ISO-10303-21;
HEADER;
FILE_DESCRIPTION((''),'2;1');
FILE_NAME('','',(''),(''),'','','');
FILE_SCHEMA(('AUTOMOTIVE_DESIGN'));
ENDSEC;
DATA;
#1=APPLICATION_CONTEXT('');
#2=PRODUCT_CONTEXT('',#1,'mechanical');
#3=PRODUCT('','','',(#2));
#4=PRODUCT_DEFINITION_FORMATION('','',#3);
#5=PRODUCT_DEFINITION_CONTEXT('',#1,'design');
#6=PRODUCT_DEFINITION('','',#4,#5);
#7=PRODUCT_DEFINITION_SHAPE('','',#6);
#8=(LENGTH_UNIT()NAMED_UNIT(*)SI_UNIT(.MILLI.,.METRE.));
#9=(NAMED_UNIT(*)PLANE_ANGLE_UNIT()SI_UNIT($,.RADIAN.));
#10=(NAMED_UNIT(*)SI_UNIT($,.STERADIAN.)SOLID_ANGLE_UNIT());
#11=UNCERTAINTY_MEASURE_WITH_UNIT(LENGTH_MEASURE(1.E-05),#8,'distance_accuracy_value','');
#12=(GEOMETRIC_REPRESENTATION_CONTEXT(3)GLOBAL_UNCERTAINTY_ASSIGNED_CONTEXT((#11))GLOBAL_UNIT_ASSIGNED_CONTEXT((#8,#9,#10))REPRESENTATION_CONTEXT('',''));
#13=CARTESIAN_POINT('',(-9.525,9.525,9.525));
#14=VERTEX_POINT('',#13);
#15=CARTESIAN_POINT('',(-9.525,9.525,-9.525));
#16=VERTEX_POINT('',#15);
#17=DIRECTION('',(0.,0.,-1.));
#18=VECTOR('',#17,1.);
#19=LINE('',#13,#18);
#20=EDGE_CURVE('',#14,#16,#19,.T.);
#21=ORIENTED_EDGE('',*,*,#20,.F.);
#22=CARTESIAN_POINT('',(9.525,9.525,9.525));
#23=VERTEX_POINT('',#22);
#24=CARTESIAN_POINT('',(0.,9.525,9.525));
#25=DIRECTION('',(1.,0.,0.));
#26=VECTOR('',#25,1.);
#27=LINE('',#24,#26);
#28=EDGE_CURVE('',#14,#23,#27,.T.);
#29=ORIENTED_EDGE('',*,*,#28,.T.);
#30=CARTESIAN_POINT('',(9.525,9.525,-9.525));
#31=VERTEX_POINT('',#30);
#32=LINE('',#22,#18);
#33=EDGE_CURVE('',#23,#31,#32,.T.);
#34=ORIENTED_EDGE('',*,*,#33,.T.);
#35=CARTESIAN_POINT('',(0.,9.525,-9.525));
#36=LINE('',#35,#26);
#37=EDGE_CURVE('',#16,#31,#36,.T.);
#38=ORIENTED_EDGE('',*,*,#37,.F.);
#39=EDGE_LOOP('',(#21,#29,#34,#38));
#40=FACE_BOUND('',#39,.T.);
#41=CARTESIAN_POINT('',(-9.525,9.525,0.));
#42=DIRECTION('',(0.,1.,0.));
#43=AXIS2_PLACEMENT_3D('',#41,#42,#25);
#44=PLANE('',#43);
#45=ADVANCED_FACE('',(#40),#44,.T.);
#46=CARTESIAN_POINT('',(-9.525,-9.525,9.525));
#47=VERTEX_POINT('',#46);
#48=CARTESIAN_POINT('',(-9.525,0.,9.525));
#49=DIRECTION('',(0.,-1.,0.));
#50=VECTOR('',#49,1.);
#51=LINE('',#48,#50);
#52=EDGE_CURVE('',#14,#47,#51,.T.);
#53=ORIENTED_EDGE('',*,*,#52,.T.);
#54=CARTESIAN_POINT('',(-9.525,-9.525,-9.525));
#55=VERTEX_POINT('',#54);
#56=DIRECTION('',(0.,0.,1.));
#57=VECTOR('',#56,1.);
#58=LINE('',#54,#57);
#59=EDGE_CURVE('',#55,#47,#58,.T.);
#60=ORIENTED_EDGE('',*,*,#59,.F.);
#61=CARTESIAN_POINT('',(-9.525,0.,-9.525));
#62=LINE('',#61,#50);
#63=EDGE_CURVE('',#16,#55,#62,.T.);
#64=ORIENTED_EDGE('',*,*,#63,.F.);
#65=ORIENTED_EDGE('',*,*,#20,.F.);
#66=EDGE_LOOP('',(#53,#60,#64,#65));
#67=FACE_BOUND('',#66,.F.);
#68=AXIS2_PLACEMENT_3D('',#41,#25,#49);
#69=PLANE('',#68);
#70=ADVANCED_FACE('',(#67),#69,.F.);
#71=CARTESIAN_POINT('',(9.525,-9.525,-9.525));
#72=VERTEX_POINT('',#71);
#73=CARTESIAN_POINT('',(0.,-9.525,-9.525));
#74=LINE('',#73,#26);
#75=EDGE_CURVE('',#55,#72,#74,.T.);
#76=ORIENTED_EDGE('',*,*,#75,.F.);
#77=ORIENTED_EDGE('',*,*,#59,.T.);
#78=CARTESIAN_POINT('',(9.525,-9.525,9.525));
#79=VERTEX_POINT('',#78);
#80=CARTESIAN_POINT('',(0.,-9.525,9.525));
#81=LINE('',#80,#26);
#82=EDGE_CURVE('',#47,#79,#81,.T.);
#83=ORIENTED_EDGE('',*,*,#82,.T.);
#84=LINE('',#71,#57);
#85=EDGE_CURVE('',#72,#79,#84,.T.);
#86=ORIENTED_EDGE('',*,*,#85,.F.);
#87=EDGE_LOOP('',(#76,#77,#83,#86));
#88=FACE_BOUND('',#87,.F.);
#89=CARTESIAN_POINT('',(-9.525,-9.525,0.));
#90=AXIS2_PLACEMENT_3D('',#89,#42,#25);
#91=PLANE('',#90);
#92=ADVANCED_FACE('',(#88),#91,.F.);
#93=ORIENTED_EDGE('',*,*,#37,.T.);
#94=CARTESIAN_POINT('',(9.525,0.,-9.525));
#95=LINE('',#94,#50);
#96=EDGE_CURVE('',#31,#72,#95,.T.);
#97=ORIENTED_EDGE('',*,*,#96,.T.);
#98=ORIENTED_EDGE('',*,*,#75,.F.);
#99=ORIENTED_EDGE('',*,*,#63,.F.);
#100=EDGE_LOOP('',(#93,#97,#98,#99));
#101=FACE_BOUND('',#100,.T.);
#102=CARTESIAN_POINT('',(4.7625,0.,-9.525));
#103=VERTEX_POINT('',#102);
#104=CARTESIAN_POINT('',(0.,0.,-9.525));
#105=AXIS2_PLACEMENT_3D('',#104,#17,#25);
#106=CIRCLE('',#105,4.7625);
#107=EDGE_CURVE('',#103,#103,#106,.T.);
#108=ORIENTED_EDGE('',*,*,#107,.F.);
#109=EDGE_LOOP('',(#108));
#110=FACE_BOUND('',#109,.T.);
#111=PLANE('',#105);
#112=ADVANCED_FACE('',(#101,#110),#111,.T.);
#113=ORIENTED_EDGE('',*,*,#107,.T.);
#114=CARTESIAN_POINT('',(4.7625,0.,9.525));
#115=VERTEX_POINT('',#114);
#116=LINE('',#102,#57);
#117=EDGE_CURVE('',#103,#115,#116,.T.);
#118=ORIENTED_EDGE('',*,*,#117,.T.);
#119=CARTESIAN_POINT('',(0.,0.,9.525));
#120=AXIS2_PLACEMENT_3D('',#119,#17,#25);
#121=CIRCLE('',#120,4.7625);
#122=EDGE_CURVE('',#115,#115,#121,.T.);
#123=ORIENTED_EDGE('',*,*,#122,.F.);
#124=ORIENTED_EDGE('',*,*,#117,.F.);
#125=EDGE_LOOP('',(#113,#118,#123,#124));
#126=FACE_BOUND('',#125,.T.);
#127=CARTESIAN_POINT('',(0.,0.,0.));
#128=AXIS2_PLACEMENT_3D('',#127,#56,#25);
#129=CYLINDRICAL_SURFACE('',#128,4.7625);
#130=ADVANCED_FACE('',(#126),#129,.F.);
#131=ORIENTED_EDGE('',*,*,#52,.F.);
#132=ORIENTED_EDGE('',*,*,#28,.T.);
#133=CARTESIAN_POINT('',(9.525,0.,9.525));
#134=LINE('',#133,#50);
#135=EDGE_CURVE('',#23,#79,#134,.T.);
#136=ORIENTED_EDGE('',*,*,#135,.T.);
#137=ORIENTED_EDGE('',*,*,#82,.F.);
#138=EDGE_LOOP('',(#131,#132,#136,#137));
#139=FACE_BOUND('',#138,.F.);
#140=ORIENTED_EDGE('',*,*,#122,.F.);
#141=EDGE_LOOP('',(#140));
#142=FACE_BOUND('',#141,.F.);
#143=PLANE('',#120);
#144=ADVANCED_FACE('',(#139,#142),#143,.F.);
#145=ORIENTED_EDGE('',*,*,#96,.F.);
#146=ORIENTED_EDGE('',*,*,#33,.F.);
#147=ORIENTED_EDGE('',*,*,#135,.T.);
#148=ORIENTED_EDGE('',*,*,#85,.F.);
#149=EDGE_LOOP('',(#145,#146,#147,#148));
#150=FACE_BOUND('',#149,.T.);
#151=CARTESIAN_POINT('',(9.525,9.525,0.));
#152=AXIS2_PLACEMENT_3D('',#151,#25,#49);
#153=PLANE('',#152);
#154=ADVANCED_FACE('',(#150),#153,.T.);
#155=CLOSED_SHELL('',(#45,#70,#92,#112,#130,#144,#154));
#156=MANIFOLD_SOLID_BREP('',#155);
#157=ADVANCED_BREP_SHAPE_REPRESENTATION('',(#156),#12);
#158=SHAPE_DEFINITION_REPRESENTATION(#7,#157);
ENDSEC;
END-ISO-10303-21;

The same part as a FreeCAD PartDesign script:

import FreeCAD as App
import Part
import Sketcher

V = App.Vector
Q = App.Units.Quantity

doc = App.newDocument("Part")
params = doc.addObject("Spreadsheet::Sheet", "Params")
for row, (alias, value) in enumerate([
    ("sketch1_diameter", "0.375 in"),
    ("sketch1_width", "0.75 in"),
    ("pad1_length", "0.75 in"),
], start=1):
    params.set(f"A{row}", alias)
    params.set(f"B{row}", "=" + value)
    params.setAlias(f"B{row}", alias)

body = doc.addObject("PartDesign::Body", "Body")

# Sketch on XZ plane
sketch1 = body.newObject("Sketcher::SketchObject", "Sketch")
sketch1.AttachmentSupport = (doc.getObject("XZ_Plane"), [""])
sketch1.MapMode = "FlatFace"
sketch1.addGeometry(Part.LineSegment(V(-9.5, 9.5, 0), V(-9.5, -9.5, 0)), False)
sketch1.addGeometry(Part.LineSegment(V(-9.5, -9.5, 0), V(9.5, -9.5, 0)), False)
sketch1.addGeometry(Part.LineSegment(V(9.5, -9.5, 0), V(9.5, 9.5, 0)), False)
sketch1.addGeometry(Part.LineSegment(V(9.5, 9.5, 0), V(-9.5, 9.5, 0)), False)
sketch1.addGeometry(Part.Circle(V(0, 0, 0), V(0, 0, 1), 4.8), False)
sketch1.addConstraint(Sketcher.Constraint("Coincident", 0, 2, 1, 1))
sketch1.addConstraint(Sketcher.Constraint("Coincident", 1, 2, 2, 1))
sketch1.addConstraint(Sketcher.Constraint("Coincident", 2, 2, 3, 1))
sketch1.addConstraint(Sketcher.Constraint("Coincident", 3, 2, 0, 1))
sketch1.addConstraint(Sketcher.Constraint("Vertical", 0))
sketch1.addConstraint(Sketcher.Constraint("Horizontal", 1))
sketch1.addConstraint(Sketcher.Constraint("Vertical", 2))
sketch1.addConstraint(Sketcher.Constraint("Horizontal", 3))
sketch1.addConstraint(Sketcher.Constraint("Coincident", 4, 3, -1, 1))
sketch1.addConstraint(Sketcher.Constraint("Symmetric", 0, 2, 2, 2, -1, 1))
sketch1.addConstraint(Sketcher.Constraint("Equal", 3, 0))
sketch1.addConstraint(Sketcher.Constraint("Diameter", 4, Q("0.375 in")))
sketch1.addConstraint(Sketcher.Constraint("DistanceX", 1, 1, 1, 2, Q("0.75 in")))
sketch1.setExpression("Constraints[11]", "Params.sketch1_diameter")
sketch1.setExpression("Constraints[12]", "Params.sketch1_width")
pad1 = body.newObject("PartDesign::Pad", "Pad")
pad1.Profile = sketch1
pad1.setExpression("Length", "Params.pad1_length")
pad1.Midplane = True
body2 = doc.addObject("PartDesign::Body", "Body001")
doc.recompute()

body.Placement = App.Placement(V(0, 0, 0), App.Rotation(V(1, 0, 0), 90))
boolean = body2.newObject("PartDesign::Boolean", "Boolean")
boolean.Type = "Fuse"
boolean.addObjects([body])

doc.recompute()
